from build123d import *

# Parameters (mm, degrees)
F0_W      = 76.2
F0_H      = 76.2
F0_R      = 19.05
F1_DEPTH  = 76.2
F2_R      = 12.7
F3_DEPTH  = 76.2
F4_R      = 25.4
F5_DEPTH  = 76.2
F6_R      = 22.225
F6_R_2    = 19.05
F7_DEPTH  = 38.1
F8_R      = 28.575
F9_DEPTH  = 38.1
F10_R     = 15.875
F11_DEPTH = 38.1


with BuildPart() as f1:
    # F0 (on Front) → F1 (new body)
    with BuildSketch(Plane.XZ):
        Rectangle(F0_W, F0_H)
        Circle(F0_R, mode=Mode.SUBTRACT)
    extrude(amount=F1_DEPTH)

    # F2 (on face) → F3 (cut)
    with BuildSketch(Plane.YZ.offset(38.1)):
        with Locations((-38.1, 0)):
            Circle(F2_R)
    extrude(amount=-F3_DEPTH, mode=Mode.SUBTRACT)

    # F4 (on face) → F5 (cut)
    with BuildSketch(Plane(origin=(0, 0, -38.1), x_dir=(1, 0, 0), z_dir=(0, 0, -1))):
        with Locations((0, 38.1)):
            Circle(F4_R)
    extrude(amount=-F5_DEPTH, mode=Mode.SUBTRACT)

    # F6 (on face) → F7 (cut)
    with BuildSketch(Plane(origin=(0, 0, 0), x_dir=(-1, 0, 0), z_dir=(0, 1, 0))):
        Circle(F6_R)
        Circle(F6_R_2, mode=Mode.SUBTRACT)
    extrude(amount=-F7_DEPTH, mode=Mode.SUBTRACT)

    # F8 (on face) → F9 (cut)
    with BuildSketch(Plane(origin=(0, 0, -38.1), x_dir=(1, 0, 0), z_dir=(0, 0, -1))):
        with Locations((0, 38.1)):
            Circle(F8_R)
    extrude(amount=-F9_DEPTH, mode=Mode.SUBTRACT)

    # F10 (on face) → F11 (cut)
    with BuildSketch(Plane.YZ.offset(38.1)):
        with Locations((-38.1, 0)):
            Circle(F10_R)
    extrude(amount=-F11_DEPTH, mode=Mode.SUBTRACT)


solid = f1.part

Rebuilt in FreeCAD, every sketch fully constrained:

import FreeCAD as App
import Part
import Sketcher

V = App.Vector
Q = App.Units.Quantity


def add_polygon(sketch, points):
    """Adds a closed chain of lines whose ends are joined by coincident constraints."""
    first, n = sketch.GeometryCount, len(points)
    for a, b in zip(points, points[1:] + points[:1]):
        sketch.addGeometry(Part.LineSegment(App.Vector(*a, 0), App.Vector(*b, 0)), False)
    for i in range(n):
        sketch.addConstraint(Sketcher.Constraint("Coincident", first + i, 2, first + (i + 1) % n, 1))

doc = App.newDocument("Part")
body = doc.addObject("PartDesign::Body", "Body")

# Sketch on XZ plane
sketch1 = doc.addObject("Sketcher::SketchObject", "Sketch")
body.addObject(sketch1)
sketch1.AttachmentSupport = (doc.XZ_Plane, [""])
sketch1.MapMode = "FlatFace"
add_polygon(sketch1, [(-38, 38), (-38, -38), (38, -38), (38, 38)])  # lines 0-3
sketch1.addGeometry(Part.Circle(V(0, 0, 0), V(0, 0, 1), 19), False)  # 4
sketch1.addConstraint(Sketcher.Constraint("Vertical", 0))
sketch1.addConstraint(Sketcher.Constraint("Horizontal", 1))
sketch1.addConstraint(Sketcher.Constraint("Vertical", 2))
sketch1.addConstraint(Sketcher.Constraint("Horizontal", 3))
sketch1.addConstraint(Sketcher.Constraint("Coincident", 4, 3, -1, 1))
sketch1.addConstraint(Sketcher.Constraint("Symmetric", 0, 2, 2, 2, -1, 1))
sketch1.addConstraint(Sketcher.Constraint("Equal", 3, 0))
sketch1.addConstraint(Sketcher.Constraint("Diameter", 4, Q("1.5 in")))
sketch1.addConstraint(Sketcher.Constraint("DistanceX", 1, 1, 1, 2, Q("3 in")))
pad1 = doc.addObject("PartDesign::Pad", "Pad")
body.addObject(pad1)
pad1.Profile = sketch1
pad1.Length = Q("3 in")

# Sketch on YZ plane
sketch2 = doc.addObject("Sketcher::SketchObject", "Sketch001")
body.addObject(sketch2)
sketch2.AttachmentSupport = (doc.YZ_Plane, [""])
sketch2.MapMode = "FlatFace"
sketch2.AttachmentOffset = App.Placement(V(0, 0, 1.5 * 25.4), App.Rotation())
sketch2.addGeometry(Part.Circle(V(-38, 0, 0), V(0, 0, 1), 13), False)
sketch2.addConstraint(Sketcher.Constraint("PointOnObject", 0, 3, -1))
sketch2.addConstraint(Sketcher.Constraint("Diameter", 0, Q("1 in")))
sketch2.addConstraint(Sketcher.Constraint("DistanceX", 0, 3, -1, 1, Q("1.5 in")))
pocket1 = doc.addObject("PartDesign::Pocket", "Pocket")
body.addObject(pocket1)
pocket1.Profile = sketch2
pocket1.Length = Q("3 in")

# Sketch on XY plane
sketch3 = doc.addObject("Sketcher::SketchObject", "Sketch002")
body.addObject(sketch3)
sketch3.AttachmentSupport = (doc.XY_Plane, [""])
sketch3.MapMode = "FlatFace"
sketch3.AttachmentOffset = App.Placement(V(0, 0, -1.5 * 25.4), App.Rotation())
sketch3.addGeometry(Part.Circle(V(0, -38, 0), V(0, 0, 1), 25), False)
sketch3.addConstraint(Sketcher.Constraint("PointOnObject", 0, 3, -2))
sketch3.addConstraint(Sketcher.Constraint("Diameter", 0, Q("2 in")))
sketch3.addConstraint(Sketcher.Constraint("DistanceY", 0, 3, -1, 1, Q("1.5 in")))
pocket2 = doc.addObject("PartDesign::Pocket", "Pocket001")
body.addObject(pocket2)
pocket2.Profile = sketch3
pocket2.Length = Q("3 in")
pocket2.Reversed = True

# Sketch on XZ plane
sketch4 = doc.addObject("Sketcher::SketchObject", "Sketch003")
body.addObject(sketch4)
sketch4.AttachmentSupport = (doc.XZ_Plane, [""])
sketch4.MapMode = "FlatFace"
sketch4.addGeometry(Part.Circle(V(0, 0, 0), V(0, 0, 1), 22), False)
sketch4.addGeometry(Part.Circle(V(0, 0, 0), V(0, 0, 1), 19), False)
sketch4.addConstraint(Sketcher.Constraint("Coincident", 0, 3, -1, 1))
sketch4.addConstraint(Sketcher.Constraint("Coincident", 1, 3, -1, 1))
sketch4.addConstraint(Sketcher.Constraint("Diameter", 1, Q("1.5 in")))
sketch4.addConstraint(Sketcher.Constraint("Diameter", 0, Q("1.75 in")))
pocket3 = doc.addObject("PartDesign::Pocket", "Pocket002")
body.addObject(pocket3)
pocket3.Profile = sketch4
pocket3.Length = Q("1.5 in")
pocket3.Reversed = True

# Sketch on XY plane
sketch5 = doc.addObject("Sketcher::SketchObject", "Sketch004")
body.addObject(sketch5)
sketch5.AttachmentSupport = (doc.XY_Plane, [""])
sketch5.MapMode = "FlatFace"
sketch5.AttachmentOffset = App.Placement(V(0, 0, -1.5 * 25.4), App.Rotation())
sketch5.addGeometry(Part.Circle(V(0, -38, 0), V(0, 0, 1), 29), False)
sketch5.addConstraint(Sketcher.Constraint("PointOnObject", 0, 3, -2))
sketch5.addConstraint(Sketcher.Constraint("Diameter", 0, Q("2.25 in")))
sketch5.addConstraint(Sketcher.Constraint("DistanceY", 0, 3, -1, 1, Q("1.5 in")))
pocket4 = doc.addObject("PartDesign::Pocket", "Pocket003")
body.addObject(pocket4)
pocket4.Profile = sketch5
pocket4.Length = Q("1.5 in")
pocket4.Reversed = True

# Sketch on YZ plane
sketch6 = doc.addObject("Sketcher::SketchObject", "Sketch005")
body.addObject(sketch6)
sketch6.AttachmentSupport = (doc.YZ_Plane, [""])
sketch6.MapMode = "FlatFace"
sketch6.AttachmentOffset = App.Placement(V(0, 0, 1.5 * 25.4), App.Rotation())
sketch6.addGeometry(Part.Circle(V(-38, 0, 0), V(0, 0, 1), 16), False)
sketch6.addConstraint(Sketcher.Constraint("PointOnObject", 0, 3, -1))
sketch6.addConstraint(Sketcher.Constraint("Diameter", 0, Q("1.25 in")))
sketch6.addConstraint(Sketcher.Constraint("DistanceX", 0, 3, -1, 1, Q("1.5 in")))
pocket5 = doc.addObject("PartDesign::Pocket", "Pocket004")
body.addObject(pocket5)
pocket5.Profile = sketch6
pocket5.Length = Q("1.5 in")

doc.recompute()
